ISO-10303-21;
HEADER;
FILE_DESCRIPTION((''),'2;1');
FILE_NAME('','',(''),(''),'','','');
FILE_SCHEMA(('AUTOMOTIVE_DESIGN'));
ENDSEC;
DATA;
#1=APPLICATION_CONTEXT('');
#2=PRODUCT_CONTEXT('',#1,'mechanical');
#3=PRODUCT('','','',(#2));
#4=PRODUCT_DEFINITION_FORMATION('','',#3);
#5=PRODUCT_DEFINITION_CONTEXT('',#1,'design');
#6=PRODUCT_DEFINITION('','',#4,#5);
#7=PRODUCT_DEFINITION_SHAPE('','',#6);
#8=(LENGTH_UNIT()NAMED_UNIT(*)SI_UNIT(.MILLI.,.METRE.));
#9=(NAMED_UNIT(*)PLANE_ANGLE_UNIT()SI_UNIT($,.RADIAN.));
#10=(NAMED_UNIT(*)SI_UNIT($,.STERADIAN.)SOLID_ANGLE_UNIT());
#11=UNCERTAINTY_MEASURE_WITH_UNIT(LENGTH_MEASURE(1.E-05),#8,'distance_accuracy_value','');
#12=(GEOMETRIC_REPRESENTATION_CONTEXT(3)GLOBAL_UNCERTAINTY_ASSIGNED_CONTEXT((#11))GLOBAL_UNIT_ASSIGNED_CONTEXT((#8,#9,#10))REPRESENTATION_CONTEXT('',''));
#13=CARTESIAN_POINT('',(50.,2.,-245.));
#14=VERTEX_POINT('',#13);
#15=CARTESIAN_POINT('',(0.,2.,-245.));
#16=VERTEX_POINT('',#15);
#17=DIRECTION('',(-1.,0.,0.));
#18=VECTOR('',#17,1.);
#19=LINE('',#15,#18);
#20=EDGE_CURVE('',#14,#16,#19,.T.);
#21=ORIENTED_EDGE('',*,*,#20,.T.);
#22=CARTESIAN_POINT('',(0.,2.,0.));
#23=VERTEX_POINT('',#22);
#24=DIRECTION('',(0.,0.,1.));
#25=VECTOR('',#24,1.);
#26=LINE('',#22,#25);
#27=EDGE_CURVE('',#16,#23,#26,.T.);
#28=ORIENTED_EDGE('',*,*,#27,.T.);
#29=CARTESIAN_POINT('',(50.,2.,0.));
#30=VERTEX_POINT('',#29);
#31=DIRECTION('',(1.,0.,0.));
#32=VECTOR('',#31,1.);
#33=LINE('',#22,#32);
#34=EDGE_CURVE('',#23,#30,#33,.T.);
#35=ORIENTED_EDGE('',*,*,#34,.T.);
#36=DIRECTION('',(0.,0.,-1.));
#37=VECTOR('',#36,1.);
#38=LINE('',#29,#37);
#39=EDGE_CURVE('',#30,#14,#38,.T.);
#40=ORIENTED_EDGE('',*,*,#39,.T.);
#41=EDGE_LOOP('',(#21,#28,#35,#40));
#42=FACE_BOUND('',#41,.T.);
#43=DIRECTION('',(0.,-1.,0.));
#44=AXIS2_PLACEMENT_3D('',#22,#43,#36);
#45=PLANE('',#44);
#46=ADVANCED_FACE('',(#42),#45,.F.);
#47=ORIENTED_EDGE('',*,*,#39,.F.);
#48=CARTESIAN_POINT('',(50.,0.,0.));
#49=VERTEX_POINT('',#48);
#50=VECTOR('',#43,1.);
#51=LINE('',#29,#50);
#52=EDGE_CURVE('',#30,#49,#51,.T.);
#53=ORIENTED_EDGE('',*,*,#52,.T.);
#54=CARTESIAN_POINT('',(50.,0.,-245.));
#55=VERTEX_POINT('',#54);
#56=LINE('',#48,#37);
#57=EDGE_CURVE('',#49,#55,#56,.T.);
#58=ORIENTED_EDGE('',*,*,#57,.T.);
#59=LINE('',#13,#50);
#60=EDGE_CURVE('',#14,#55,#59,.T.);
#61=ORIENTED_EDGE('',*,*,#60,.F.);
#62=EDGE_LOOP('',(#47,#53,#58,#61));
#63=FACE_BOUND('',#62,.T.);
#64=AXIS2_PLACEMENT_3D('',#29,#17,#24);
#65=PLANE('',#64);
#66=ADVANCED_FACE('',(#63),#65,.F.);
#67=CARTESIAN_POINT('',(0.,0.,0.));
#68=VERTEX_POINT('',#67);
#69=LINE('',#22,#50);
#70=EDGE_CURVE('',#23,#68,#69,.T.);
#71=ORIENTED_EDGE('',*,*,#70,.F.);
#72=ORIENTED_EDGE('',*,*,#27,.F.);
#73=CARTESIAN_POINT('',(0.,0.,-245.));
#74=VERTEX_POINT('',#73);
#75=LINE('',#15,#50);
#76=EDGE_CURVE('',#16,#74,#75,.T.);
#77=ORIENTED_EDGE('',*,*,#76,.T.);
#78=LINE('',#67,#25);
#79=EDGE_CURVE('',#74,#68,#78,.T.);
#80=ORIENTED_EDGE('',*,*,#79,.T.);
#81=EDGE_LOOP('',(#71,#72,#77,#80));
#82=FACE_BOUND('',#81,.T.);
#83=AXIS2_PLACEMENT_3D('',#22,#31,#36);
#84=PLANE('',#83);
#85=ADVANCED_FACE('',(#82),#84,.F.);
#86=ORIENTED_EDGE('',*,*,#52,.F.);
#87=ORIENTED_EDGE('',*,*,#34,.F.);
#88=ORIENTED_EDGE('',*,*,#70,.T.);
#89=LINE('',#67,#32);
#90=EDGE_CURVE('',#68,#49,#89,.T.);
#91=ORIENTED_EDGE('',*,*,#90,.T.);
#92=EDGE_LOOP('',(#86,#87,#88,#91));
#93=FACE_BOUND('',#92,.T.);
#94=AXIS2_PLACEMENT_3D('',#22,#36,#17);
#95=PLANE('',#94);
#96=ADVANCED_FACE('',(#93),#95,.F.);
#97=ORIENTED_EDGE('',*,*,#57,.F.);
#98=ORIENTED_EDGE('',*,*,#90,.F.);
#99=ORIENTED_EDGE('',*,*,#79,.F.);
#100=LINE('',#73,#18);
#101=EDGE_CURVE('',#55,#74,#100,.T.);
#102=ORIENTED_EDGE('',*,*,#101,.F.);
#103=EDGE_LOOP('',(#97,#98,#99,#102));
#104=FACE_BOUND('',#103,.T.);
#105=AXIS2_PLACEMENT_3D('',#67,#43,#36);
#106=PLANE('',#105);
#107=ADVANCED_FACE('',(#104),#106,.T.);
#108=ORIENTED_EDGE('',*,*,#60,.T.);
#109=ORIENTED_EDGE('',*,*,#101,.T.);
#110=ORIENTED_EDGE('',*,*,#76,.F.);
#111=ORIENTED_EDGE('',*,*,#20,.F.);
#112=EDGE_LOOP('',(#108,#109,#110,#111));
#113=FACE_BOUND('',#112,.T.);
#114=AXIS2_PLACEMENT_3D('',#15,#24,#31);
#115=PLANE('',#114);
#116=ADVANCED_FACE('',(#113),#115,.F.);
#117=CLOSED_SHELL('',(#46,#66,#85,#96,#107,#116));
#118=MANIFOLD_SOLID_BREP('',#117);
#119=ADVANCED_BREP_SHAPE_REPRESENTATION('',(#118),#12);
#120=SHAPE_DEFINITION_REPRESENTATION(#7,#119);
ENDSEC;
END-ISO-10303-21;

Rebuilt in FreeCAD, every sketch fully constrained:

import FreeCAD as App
import Part
import Sketcher


def add_polygon(sketch, points):
    """Adds a closed chain of lines whose ends are joined by coincident constraints."""
    first, n = sketch.GeometryCount, len(points)
    for a, b in zip(points, points[1:] + points[:1]):
        sketch.addGeometry(Part.LineSegment(App.Vector(*a, 0), App.Vector(*b, 0)), False)
    for i in range(n):
        sketch.addConstraint(Sketcher.Constraint("Coincident", first + i, 2, first + (i + 1) % n, 1))

doc = App.newDocument("Part")
body = doc.addObject("PartDesign::Body", "Body")

# Sketch on XZ plane
sketch1 = body.newObject("Sketcher::SketchObject", "Sketch")
sketch1.AttachmentSupport = (doc.getObject("XZ_Plane"), [""])
sketch1.MapMode = "FlatFace"
add_polygon(sketch1, [(0, -245), (0, 0), (50, 0), (50, -245)])  # lines 0-3
sketch1.addConstraint([
    Sketcher.Constraint("Vertical", 0),
    Sketcher.Constraint("Horizontal", 1),
    Sketcher.Constraint("Vertical", 2),
    Sketcher.Constraint("Horizontal", 3),
    Sketcher.Constraint("Coincident", 0, 2, -1, 1),
    Sketcher.Constraint("DistanceX", 1, 1, 1, 2, 50.0),
    Sketcher.Constraint("DistanceY", 0, 1, 0, 2, 245.0),
])
pad1 = body.newObject("PartDesign::Pad", "Pad")
pad1.Profile = sketch1
pad1.Length = 2
pad1.Reversed = True

doc.recompute()
